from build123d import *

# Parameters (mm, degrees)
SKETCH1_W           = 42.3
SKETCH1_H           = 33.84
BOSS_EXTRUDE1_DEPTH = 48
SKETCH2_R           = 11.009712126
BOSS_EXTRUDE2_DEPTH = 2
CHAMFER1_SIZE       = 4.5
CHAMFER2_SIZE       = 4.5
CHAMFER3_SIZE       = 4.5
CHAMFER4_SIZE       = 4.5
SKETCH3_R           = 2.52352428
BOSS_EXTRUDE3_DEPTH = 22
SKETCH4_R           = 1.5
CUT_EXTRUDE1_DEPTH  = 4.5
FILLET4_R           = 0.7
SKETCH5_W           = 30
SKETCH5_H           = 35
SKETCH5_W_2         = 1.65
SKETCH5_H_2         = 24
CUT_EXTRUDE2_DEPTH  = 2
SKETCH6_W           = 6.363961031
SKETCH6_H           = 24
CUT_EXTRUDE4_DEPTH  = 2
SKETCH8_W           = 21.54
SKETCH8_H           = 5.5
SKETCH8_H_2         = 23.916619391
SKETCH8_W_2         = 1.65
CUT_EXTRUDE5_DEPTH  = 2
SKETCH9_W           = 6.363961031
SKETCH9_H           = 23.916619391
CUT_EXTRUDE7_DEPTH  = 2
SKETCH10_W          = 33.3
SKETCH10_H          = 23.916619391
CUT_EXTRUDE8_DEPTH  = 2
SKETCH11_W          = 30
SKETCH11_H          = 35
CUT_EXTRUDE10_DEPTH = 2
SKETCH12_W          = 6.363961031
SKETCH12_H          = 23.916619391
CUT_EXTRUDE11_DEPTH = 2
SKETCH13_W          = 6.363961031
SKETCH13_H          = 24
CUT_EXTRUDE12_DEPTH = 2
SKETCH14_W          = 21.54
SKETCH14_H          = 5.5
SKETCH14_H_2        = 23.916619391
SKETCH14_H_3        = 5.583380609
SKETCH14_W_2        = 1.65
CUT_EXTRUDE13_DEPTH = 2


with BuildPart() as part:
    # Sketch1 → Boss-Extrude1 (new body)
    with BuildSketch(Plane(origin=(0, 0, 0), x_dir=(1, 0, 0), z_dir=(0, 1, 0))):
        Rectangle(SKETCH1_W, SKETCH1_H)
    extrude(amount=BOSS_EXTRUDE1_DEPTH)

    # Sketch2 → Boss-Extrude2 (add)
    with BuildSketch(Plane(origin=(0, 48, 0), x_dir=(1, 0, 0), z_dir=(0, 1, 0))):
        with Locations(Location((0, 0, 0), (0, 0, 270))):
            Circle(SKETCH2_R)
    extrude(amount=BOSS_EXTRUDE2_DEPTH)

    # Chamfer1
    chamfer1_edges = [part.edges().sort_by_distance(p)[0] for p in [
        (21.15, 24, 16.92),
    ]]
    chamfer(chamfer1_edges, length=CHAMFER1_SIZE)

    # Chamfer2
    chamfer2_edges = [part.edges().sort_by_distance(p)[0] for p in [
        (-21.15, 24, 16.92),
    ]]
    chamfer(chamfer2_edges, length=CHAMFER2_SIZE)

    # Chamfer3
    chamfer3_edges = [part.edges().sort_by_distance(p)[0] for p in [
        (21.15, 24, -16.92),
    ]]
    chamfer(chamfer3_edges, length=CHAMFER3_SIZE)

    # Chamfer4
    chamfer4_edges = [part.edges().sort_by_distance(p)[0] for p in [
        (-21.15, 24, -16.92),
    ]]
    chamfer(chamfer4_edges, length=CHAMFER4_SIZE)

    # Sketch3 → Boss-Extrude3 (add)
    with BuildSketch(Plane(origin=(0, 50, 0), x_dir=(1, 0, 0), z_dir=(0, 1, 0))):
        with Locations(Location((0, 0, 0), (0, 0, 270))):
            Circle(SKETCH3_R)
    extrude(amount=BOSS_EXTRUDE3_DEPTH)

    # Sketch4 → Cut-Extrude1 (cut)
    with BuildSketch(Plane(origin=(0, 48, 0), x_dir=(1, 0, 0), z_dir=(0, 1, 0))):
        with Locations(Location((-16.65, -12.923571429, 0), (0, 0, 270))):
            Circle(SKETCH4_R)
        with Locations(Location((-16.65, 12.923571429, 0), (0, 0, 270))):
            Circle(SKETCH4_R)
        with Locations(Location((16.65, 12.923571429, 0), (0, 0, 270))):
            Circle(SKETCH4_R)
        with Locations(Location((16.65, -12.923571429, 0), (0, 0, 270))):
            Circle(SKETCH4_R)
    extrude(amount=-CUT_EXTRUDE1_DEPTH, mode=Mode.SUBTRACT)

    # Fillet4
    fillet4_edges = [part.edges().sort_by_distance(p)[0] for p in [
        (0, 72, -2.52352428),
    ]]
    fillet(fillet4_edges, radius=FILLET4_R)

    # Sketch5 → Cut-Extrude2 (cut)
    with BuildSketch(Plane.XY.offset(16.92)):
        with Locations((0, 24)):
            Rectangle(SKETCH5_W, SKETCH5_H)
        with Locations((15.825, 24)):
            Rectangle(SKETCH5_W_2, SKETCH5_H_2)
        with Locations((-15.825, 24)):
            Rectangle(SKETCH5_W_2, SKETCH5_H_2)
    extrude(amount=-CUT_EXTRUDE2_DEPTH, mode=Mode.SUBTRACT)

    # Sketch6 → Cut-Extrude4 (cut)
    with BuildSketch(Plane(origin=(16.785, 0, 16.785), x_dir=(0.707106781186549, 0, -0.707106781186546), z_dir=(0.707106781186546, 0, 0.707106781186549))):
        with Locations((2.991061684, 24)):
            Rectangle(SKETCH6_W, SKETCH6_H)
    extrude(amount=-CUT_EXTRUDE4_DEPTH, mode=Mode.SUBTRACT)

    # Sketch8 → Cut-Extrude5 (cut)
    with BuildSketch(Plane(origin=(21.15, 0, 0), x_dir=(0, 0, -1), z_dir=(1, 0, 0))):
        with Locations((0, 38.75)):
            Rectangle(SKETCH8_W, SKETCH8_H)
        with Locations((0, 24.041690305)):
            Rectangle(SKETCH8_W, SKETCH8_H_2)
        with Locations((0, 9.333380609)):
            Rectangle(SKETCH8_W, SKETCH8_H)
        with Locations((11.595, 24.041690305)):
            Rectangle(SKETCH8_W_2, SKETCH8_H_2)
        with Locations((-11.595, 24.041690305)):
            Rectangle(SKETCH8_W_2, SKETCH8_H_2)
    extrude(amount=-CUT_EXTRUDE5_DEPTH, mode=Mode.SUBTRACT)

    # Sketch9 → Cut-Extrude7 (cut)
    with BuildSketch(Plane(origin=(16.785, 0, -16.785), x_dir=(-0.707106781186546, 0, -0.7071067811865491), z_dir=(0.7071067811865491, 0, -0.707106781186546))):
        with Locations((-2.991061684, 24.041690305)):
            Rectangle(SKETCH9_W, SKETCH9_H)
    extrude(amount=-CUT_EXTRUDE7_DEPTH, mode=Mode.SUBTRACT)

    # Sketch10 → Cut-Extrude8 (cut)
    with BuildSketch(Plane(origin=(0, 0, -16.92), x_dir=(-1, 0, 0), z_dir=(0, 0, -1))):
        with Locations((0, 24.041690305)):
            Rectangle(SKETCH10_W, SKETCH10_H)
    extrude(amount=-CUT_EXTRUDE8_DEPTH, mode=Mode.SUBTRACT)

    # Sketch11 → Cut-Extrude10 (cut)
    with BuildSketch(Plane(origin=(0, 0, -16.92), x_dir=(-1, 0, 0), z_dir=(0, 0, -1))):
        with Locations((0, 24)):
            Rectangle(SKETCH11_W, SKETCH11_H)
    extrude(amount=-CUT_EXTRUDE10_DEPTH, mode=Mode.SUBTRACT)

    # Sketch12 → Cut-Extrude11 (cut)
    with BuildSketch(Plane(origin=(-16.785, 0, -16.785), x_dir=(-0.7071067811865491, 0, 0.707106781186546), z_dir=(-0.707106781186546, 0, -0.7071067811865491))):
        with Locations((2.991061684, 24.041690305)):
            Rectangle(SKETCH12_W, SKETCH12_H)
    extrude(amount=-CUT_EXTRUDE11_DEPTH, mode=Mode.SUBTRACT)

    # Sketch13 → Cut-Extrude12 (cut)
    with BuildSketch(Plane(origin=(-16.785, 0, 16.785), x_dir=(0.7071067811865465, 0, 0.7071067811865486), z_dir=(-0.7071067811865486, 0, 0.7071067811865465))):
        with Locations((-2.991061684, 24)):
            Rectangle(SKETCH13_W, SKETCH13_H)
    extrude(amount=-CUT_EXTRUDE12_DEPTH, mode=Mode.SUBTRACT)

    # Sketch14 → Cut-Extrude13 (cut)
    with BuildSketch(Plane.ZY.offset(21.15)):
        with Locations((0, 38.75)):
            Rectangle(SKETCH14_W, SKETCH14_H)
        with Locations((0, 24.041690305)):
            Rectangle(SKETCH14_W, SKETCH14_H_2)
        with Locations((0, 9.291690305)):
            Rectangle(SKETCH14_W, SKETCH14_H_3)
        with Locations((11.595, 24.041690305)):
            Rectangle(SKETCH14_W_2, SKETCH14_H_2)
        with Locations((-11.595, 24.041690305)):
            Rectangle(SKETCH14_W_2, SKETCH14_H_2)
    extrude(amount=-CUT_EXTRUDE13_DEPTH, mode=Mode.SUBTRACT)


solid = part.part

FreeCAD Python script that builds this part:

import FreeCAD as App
import Part
import Sketcher
from FreeCAD import Vector
Q = App.Units.Quantity


def edges_at(feature, points):
    """Names of the edges that pass closest to the given points."""
    edges = feature.Shape.Edges
    near = lambda p: min(range(len(edges)), key=lambda i: edges[i].distToShape(Part.Vertex(*p))[0])
    return sorted({f"Edge{near(p) + 1}" for p in points})

doc = App.newDocument("Part")
body = doc.addObject("PartDesign::Body", "Body")

sketch1 = body.newObject("Sketcher::SketchObject", "Sketch")
sketch1.AttachmentSupport = (doc.getObject("XZ_Plane"), [""])
sketch1.MapMode = "FlatFace"
sketch1.addGeometry(Part.LineSegment(Vector(-21, -17, 0), Vector(-21, 17, 0)), False)
sketch1.addGeometry(Part.LineSegment(Vector(-21, 17, 0), Vector(21, 17, 0)), False)
sketch1.addGeometry(Part.LineSegment(Vector(21, 17, 0), Vector(21, -17, 0)), False)
sketch1.addGeometry(Part.LineSegment(Vector(21, -17, 0), Vector(-21, -17, 0)), False)
sketch1.addConstraint(Sketcher.Constraint("Coincident", 0, 2, 1, 1))
sketch1.addConstraint(Sketcher.Constraint("Coincident", 1, 2, 2, 1))
sketch1.addConstraint(Sketcher.Constraint("Coincident", 2, 2, 3, 1))
sketch1.addConstraint(Sketcher.Constraint("Coincident", 3, 2, 0, 1))
sketch1.addConstraint(Sketcher.Constraint("Vertical", 0))
sketch1.addConstraint(Sketcher.Constraint("Horizontal", 1))
sketch1.addConstraint(Sketcher.Constraint("Vertical", 2))
sketch1.addConstraint(Sketcher.Constraint("Horizontal", 3))
sketch1.addConstraint(Sketcher.Constraint("Symmetric", 0, 2, 2, 2, -1, 1))
sketch1.addConstraint(Sketcher.Constraint("DistanceX", 1, 1, 1, 2, Q("42.3 mm")))
sketch1.addConstraint(Sketcher.Constraint("DistanceY", 0, 1, 0, 2, Q("33.84 mm")))
pad1 = body.newObject("PartDesign::Pad", "Pad")
pad1.Profile = sketch1
pad1.Length = 48
pad1.Reversed = True

sketch2 = body.newObject("Sketcher::SketchObject", "Sketch001")
sketch2.AttachmentSupport = (doc.getObject("XZ_Plane"), [""])
sketch2.MapMode = "FlatFace"
sketch2.AttachmentOffset = App.Placement(Vector(0, 0, -48), App.Rotation())
sketch2.addGeometry(Part.Circle(Vector(0, 0, 0), Vector(0, 0, 1), 11), False)
sketch2.addConstraint(Sketcher.Constraint("Coincident", 0, 3, -1, 1))
sketch2.addConstraint(Sketcher.Constraint("Diameter", 0, Q("22.019424 mm")))
pad2 = body.newObject("PartDesign::Pad", "Pad001")
pad2.Profile = sketch2
pad2.Length = 2
pad2.Reversed = True
doc.recompute()

chamfer = body.newObject("PartDesign::Chamfer", "Chamfer")
chamfer.Base = (pad2, edges_at(pad2, [(21.15, 24, 16.92)]))
chamfer.Size = 4.5
doc.recompute()

chamfer2 = body.newObject("PartDesign::Chamfer", "Chamfer001")
chamfer2.Base = (chamfer, edges_at(chamfer, [(-21.15, 24, 16.92)]))
chamfer2.Size = 4.5
doc.recompute()

chamfer3 = body.newObject("PartDesign::Chamfer", "Chamfer002")
chamfer3.Base = (chamfer2, edges_at(chamfer2, [(21.15, 24, -16.92)]))
chamfer3.Size = 4.5
doc.recompute()

chamfer4 = body.newObject("PartDesign::Chamfer", "Chamfer003")
chamfer4.Base = (chamfer3, edges_at(chamfer3, [(-21.15, 24, -16.92)]))
chamfer4.Size = 4.5

sketch3 = body.newObject("Sketcher::SketchObject", "Sketch002")
sketch3.AttachmentSupport = (doc.getObject("XZ_Plane"), [""])
sketch3.MapMode = "FlatFace"
sketch3.AttachmentOffset = App.Placement(Vector(0, 0, -50), App.Rotation())
sketch3.addGeometry(Part.Circle(Vector(0, 0, 0), Vector(0, 0, 1), 2.5), False)
sketch3.addConstraint(Sketcher.Constraint("Coincident", 0, 3, -1, 1))
sketch3.addConstraint(Sketcher.Constraint("Diameter", 0, Q("5.047049 mm")))
pad3 = body.newObject("PartDesign::Pad", "Pad002")
pad3.Profile = sketch3
pad3.Length = 22
pad3.Reversed = True

sketch4 = body.newObject("Sketcher::SketchObject", "Sketch003")
sketch4.AttachmentSupport = (doc.getObject("XZ_Plane"), [""])
sketch4.MapMode = "FlatFace"
sketch4.AttachmentOffset = App.Placement(Vector(0, 0, -48), App.Rotation())
sketch4.addGeometry(Part.Circle(Vector(-16.6, 12.9, 0), Vector(0, 0, 1), 1.5), False)
sketch4.addGeometry(Part.Circle(Vector(-16.6, -12.9, 0), Vector(0, 0, 1), 1.5), False)
sketch4.addGeometry(Part.Circle(Vector(16.6, -12.9, 0), Vector(0, 0, 1), 1.5), False)
sketch4.addGeometry(Part.Circle(Vector(16.6, 12.9, 0), Vector(0, 0, 1), 1.5), False)
sketch4.addConstraint(Sketcher.Constraint("Equal", 0, 1))
sketch4.addConstraint(Sketcher.Constraint("Equal", 1, 2))
sketch4.addConstraint(Sketcher.Constraint("Equal", 2, 3))
sketch4.addConstraint(Sketcher.Constraint("Symmetric", 0, 3, 2, 3, -1, 1))
sketch4.addConstraint(Sketcher.Constraint("Symmetric", 1, 3, 3, 3, -1, 1))
sketch4.addConstraint(Sketcher.Constraint("Symmetric", 1, 3, 2, 3, -2))
sketch4.addConstraint(Sketcher.Constraint("Diameter", 0, Q("3 mm")))
sketch4.addConstraint(Sketcher.Constraint("DistanceX", 1, 3, 2, 3, Q("33.3 mm")))
sketch4.addConstraint(Sketcher.Constraint("DistanceY", -1, 1, 0, 3, Q("12.923571 mm")))
pocket1 = body.newObject("PartDesign::Pocket", "Pocket")
pocket1.Profile = sketch4
pocket1.Length = 4.5
pocket1.Reversed = True
doc.recompute()

fillet = body.newObject("PartDesign::Fillet", "Fillet")
fillet.Base = (pocket1, edges_at(pocket1, [(0, 72, -2.524)]))
fillet.Radius = 0.7

sketch5 = body.newObject("Sketcher::SketchObject", "Sketch004")
sketch5.AttachmentSupport = (doc.getObject("XY_Plane"), [""])
sketch5.MapMode = "FlatFace"
sketch5.AttachmentOffset = App.Placement(Vector(0, 0, 16.92), App.Rotation())
sketch5.addGeometry(Part.LineSegment(Vector(-15, 12, 0), Vector(-15, 6.5, 0)), False)
sketch5.addGeometry(Part.LineSegment(Vector(-15, 6.5, 0), Vector(15, 6.5, 0)), False)
sketch5.addGeometry(Part.LineSegment(Vector(15, 6.5, 0), Vector(15, 12, 0)), False)
sketch5.addGeometry(Part.LineSegment(Vector(15, 12, 0), Vector(16.6, 12, 0)), False)
sketch5.addGeometry(Part.LineSegment(Vector(16.6, 12, 0), Vector(16.6, 36, 0)), False)
sketch5.addGeometry(Part.LineSegment(Vector(16.6, 36, 0), Vector(15, 36, 0)), False)
sketch5.addGeometry(Part.LineSegment(Vector(15, 36, 0), Vector(15, 41.5, 0)), False)
sketch5.addGeometry(Part.LineSegment(Vector(15, 41.5, 0), Vector(-15, 41.5, 0)), False)
sketch5.addGeometry(Part.LineSegment(Vector(-15, 41.5, 0), Vector(-15, 36, 0)), False)
sketch5.addGeometry(Part.LineSegment(Vector(-15, 36, 0), Vector(-16.6, 36, 0)), False)
sketch5.addGeometry(Part.LineSegment(Vector(-16.6, 36, 0), Vector(-16.6, 12, 0)), False)
sketch5.addGeometry(Part.LineSegment(Vector(-16.6, 12, 0), Vector(-15, 12, 0)), False)
sketch5.addConstraint(Sketcher.Constraint("Coincident", 0, 2, 1, 1))
sketch5.addConstraint(Sketcher.Constraint("Coincident", 1, 2, 2, 1))
sketch5.addConstraint(Sketcher.Constraint("Coincident", 2, 2, 3, 1))
sketch5.addConstraint(Sketcher.Constraint("Coincident", 3, 2, 4, 1))
sketch5.addConstraint(Sketcher.Constraint("Coincident", 4, 2, 5, 1))
sketch5.addConstraint(Sketcher.Constraint("Coincident", 5, 2, 6, 1))
sketch5.addConstraint(Sketcher.Constraint("Coincident", 6, 2, 7, 1))
sketch5.addConstraint(Sketcher.Constraint("Coincident", 7, 2, 8, 1))
sketch5.addConstraint(Sketcher.Constraint("Coincident", 8, 2, 9, 1))
sketch5.addConstraint(Sketcher.Constraint("Coincident", 9, 2, 10, 1))
sketch5.addConstraint(Sketcher.Constraint("Coincident", 10, 2, 11, 1))
sketch5.addConstraint(Sketcher.Constraint("Coincident", 11, 2, 0, 1))
sketch5.addConstraint(Sketcher.Constraint("Vertical", 0))
sketch5.addConstraint(Sketcher.Constraint("Horizontal", 1))
sketch5.addConstraint(Sketcher.Constraint("Vertical", 2))
sketch5.addConstraint(Sketcher.Constraint("Horizontal", 3))
sketch5.addConstraint(Sketcher.Constraint("Vertical", 4))
sketch5.addConstraint(Sketcher.Constraint("Horizontal", 5))
sketch5.addConstraint(Sketcher.Constraint("Vertical", 6))
sketch5.addConstraint(Sketcher.Constraint("Horizontal", 7))
sketch5.addConstraint(Sketcher.Constraint("Vertical", 8))
sketch5.addConstraint(Sketcher.Constraint("Horizontal", 9))
sketch5.addConstraint(Sketcher.Constraint("Vertical", 10))
sketch5.addConstraint(Sketcher.Constraint("Horizontal", 11))
sketch5.addConstraint(Sketcher.Constraint("Symmetric", 5, 2, 8, 2, -2))
sketch5.addConstraint(Sketcher.Constraint("Symmetric", 3, 2, 10, 2, -2))
sketch5.addConstraint(Sketcher.Constraint("Vertical", 2, 2, 5, 2))
sketch5.addConstraint(Sketcher.Constraint("Vertical", 0, 2, 7, 2))
sketch5.addConstraint(Sketcher.Constraint("Equal", 2, 6))
sketch5.addConstraint(Sketcher.Constraint("DistanceX", 1, 1, 1, 2, Q("30 mm")))
sketch5.addConstraint(Sketcher.Constraint("DistanceY", 4, 1, 4, 2, Q("24 mm")))
sketch5.addConstraint(Sketcher.Constraint("DistanceY", 0, 2, 0, 1, Q("5.5 mm")))
sketch5.addConstraint(Sketcher.Constraint("DistanceY", -1, 1, 2, 2, Q("12 mm")))
sketch5.addConstraint(Sketcher.Constraint("DistanceX", 3, 1, 3, 2, Q("1.65 mm")))
pocket2 = body.newObject("PartDesign::Pocket", "Pocket001")
pocket2.Profile = sketch5
pocket2.Length = 2

sketch6 = body.newObject("Sketcher::SketchObject", "Sketch005")
sketch6.Placement = App.Placement(Vector(16.785, 0, 16.785), App.Rotation(Vector(0.707106781, 0, -0.707106781), Vector(0, 0.999999999, 0), Vector(0.707106781, 0, 0.707106781), "ZXY"))
sketch6.addGeometry(Part.LineSegment(Vector(0, 36, 0), Vector(0, 12, 0)), False)
sketch6.addGeometry(Part.LineSegment(Vector(0, 12, 0), Vector(6, 12, 0)), False)
sketch6.addGeometry(Part.LineSegment(Vector(6, 12, 0), Vector(6, 36, 0)), False)
sketch6.addGeometry(Part.LineSegment(Vector(6, 36, 0), Vector(0, 36, 0)), False)
sketch6.addConstraint(Sketcher.Constraint("Coincident", 0, 2, 1, 1))
sketch6.addConstraint(Sketcher.Constraint("Coincident", 1, 2, 2, 1))
sketch6.addConstraint(Sketcher.Constraint("Coincident", 2, 2, 3, 1))
sketch6.addConstraint(Sketcher.Constraint("Coincident", 3, 2, 0, 1))
sketch6.addConstraint(Sketcher.Constraint("Vertical", 0))
sketch6.addConstraint(Sketcher.Constraint("Horizontal", 1))
sketch6.addConstraint(Sketcher.Constraint("Vertical", 2))
sketch6.addConstraint(Sketcher.Constraint("Horizontal", 3))
sketch6.addConstraint(Sketcher.Constraint("DistanceY", 0, 2, 0, 1, Q("24 mm")))
sketch6.addConstraint(Sketcher.Constraint("DistanceY", -1, 1, 0, 2, Q("12 mm")))
sketch6.addConstraint(Sketcher.Constraint("DistanceX", 1, 1, 1, 2, Q("6.363961 mm")))
sketch6.addConstraint(Sketcher.Constraint("DistanceX", 0, 2, -1, 1, Q("0.190919 mm")))
pocket3 = body.newObject("PartDesign::Pocket", "Pocket002")
pocket3.Profile = sketch6
pocket3.Length = 2

sketch7 = body.newObject("Sketcher::SketchObject", "Sketch006")
sketch7.AttachmentSupport = (doc.getObject("YZ_Plane"), [""])
sketch7.MapMode = "FlatFace"
sketch7.AttachmentOffset = App.Placement(Vector(0, 0, 21.15), App.Rotation())
sketch7.addGeometry(Part.LineSegment(Vector(41.5, 10.8, 0), Vector(36, 10.8, 0)), False)
sketch7.addGeometry(Part.LineSegment(Vector(36, 10.8, 0), Vector(36, 12.4, 0)), False)
sketch7.addGeometry(Part.LineSegment(Vector(36, 12.4, 0), Vector(12.1, 12.4, 0)), False)
sketch7.addGeometry(Part.LineSegment(Vector(12.1, 12.4, 0), Vector(12.1, 10.8, 0)), False)
sketch7.addGeometry(Part.LineSegment(Vector(12.1, 10.8, 0), Vector(6.6, 10.8, 0)), False)
sketch7.addGeometry(Part.LineSegment(Vector(6.6, 10.8, 0), Vector(6.6, -10.8, 0)), False)
sketch7.addGeometry(Part.LineSegment(Vector(6.6, -10.8, 0), Vector(12.1, -10.8, 0)), False)
sketch7.addGeometry(Part.LineSegment(Vector(12.1, -10.8, 0), Vector(12.1, -12.4, 0)), False)
sketch7.addGeometry(Part.LineSegment(Vector(12.1, -12.4, 0), Vector(36, -12.4, 0)), False)
sketch7.addGeometry(Part.LineSegment(Vector(36, -12.4, 0), Vector(36, -10.8, 0)), False)
sketch7.addGeometry(Part.LineSegment(Vector(36, -10.8, 0), Vector(41.5, -10.8, 0)), False)
sketch7.addGeometry(Part.LineSegment(Vector(41.5, -10.8, 0), Vector(41.5, 10.8, 0)), False)
sketch7.addConstraint(Sketcher.Constraint("Coincident", 0, 2, 1, 1))
sketch7.addConstraint(Sketcher.Constraint("Coincident", 1, 2, 2, 1))
sketch7.addConstraint(Sketcher.Constraint("Coincident", 2, 2, 3, 1))
sketch7.addConstraint(Sketcher.Constraint("Coincident", 3, 2, 4, 1))
sketch7.addConstraint(Sketcher.Constraint("Coincident", 4, 2, 5, 1))
sketch7.addConstraint(Sketcher.Constraint("Coincident", 5, 2, 6, 1))
sketch7.addConstraint(Sketcher.Constraint("Coincident", 6, 2, 7, 1))
sketch7.addConstraint(Sketcher.Constraint("Coincident", 7, 2, 8, 1))
sketch7.addConstraint(Sketcher.Constraint("Coincident", 8, 2, 9, 1))
sketch7.addConstraint(Sketcher.Constraint("Coincident", 9, 2, 10, 1))
sketch7.addConstraint(Sketcher.Constraint("Coincident", 10, 2, 11, 1))
sketch7.addConstraint(Sketcher.Constraint("Coincident", 11, 2, 0, 1))
sketch7.addConstraint(Sketcher.Constraint("Horizontal", 0))
sketch7.addConstraint(Sketcher.Constraint("Vertical", 1))
sketch7.addConstraint(Sketcher.Constraint("Horizontal", 2))
sketch7.addConstraint(Sketcher.Constraint("Vertical", 3))
sketch7.addConstraint(Sketcher.Constraint("Horizontal", 4))
sketch7.addConstraint(Sketcher.Constraint("Vertical", 5))
sketch7.addConstraint(Sketcher.Constraint("Horizontal", 6))
sketch7.addConstraint(Sketcher.Constraint("Vertical", 7))
sketch7.addConstraint(Sketcher.Constraint("Horizontal", 8))
sketch7.addConstraint(Sketcher.Constraint("Vertical", 9))
sketch7.addConstraint(Sketcher.Constraint("Horizontal", 10))
sketch7.addConstraint(Sketcher.Constraint("Vertical", 11))
sketch7.addConstraint(Sketcher.Constraint("Symmetric", 3, 2, 6, 2, -1))
sketch7.addConstraint(Sketcher.Constraint("Symmetric", 1, 2, 8, 2, -1))
sketch7.addConstraint(Sketcher.Constraint("Horizontal", 0, 2, 3, 2))
sketch7.addConstraint(Sketcher.Constraint("Horizontal", 6, 2, 9, 2))
sketch7.addConstraint(Sketcher.Constraint("Equal", 0, 4))
sketch7.addConstraint(Sketcher.Constraint("DistanceX", 0, 2, 0, 1, Q("5.5 mm")))
sketch7.addConstraint(Sketcher.Constraint("DistanceX", -1, 1, 0, 2, Q("36 mm")))
sketch7.addConstraint(Sketcher.Constraint("DistanceY", 1, 1, 1, 2, Q("1.65 mm")))
sketch7.addConstraint(Sketcher.Constraint("DistanceY", 5, 2, 5, 1, Q("21.54 mm")))
sketch7.addConstraint(Sketcher.Constraint("DistanceX", 2, 2, 2, 1, Q("23.916619 mm")))
pocket4 = body.newObject("PartDesign::Pocket", "Pocket003")
pocket4.Profile = sketch7
pocket4.Length = 2

sketch8 = body.newObject("Sketcher::SketchObject", "Sketch007")
sketch8.Placement = App.Placement(Vector(16.785, 0, -16.785), App.Rotation(Vector(-0.707106781, 0, -0.707106781), Vector(0, 0.999999999, 0), Vector(0.707106781, 0, -0.707106781), "ZXY"))
sketch8.addGeometry(Part.LineSegment(Vector(-6, 36, 0), Vector(-6, 12, 0)), False)
sketch8.addGeometry(Part.LineSegment(Vector(-6, 12, 0), Vector(0, 12, 0)), False)
sketch8.addGeometry(Part.LineSegment(Vector(0, 12, 0), Vector(0, 36, 0)), False)
sketch8.addGeometry(Part.LineSegment(Vector(0, 36, 0), Vector(-6, 36, 0)), False)
sketch8.addConstraint(Sketcher.Constraint("Coincident", 0, 2, 1, 1))
sketch8.addConstraint(Sketcher.Constraint("Coincident", 1, 2, 2, 1))
sketch8.addConstraint(Sketcher.Constraint("Coincident", 2, 2, 3, 1))
sketch8.addConstraint(Sketcher.Constraint("Coincident", 3, 2, 0, 1))
sketch8.addConstraint(Sketcher.Constraint("Vertical", 0))
sketch8.addConstraint(Sketcher.Constraint("Horizontal", 1))
sketch8.addConstraint(Sketcher.Constraint("Vertical", 2))
sketch8.addConstraint(Sketcher.Constraint("Horizontal", 3))
sketch8.addConstraint(Sketcher.Constraint("DistanceY", -1, 1, 2, 2, Q("36 mm")))
sketch8.addConstraint(Sketcher.Constraint("DistanceX", 1, 1, 1, 2, Q("6.363961 mm")))
sketch8.addConstraint(Sketcher.Constraint("DistanceY", 0, 2, 0, 1, Q("23.916619 mm")))
sketch8.addConstraint(Sketcher.Constraint("DistanceX", -1, 1, 1, 2, Q("0.190919 mm")))
pocket5 = body.newObject("PartDesign::Pocket", "Pocket004")
pocket5.Profile = sketch8
pocket5.Length = 2

sketch9 = body.newObject("Sketcher::SketchObject", "Sketch008")
sketch9.AttachmentSupport = (doc.getObject("XY_Plane"), [""])
sketch9.MapMode = "FlatFace"
sketch9.AttachmentOffset = App.Placement(Vector(0, 0, -16.92), App.Rotation())
sketch9.addGeometry(Part.LineSegment(Vector(17, 36, 0), Vector(17, 12, 0)), False)
sketch9.addGeometry(Part.LineSegment(Vector(17, 12, 0), Vector(-17, 12, 0)), False)
sketch9.addGeometry(Part.LineSegment(Vector(-17, 12, 0), Vector(-17, 36, 0)), False)
sketch9.addGeometry(Part.LineSegment(Vector(-17, 36, 0), Vector(17, 36, 0)), False)
sketch9.addConstraint(Sketcher.Constraint("Coincident", 0, 2, 1, 1))
sketch9.addConstraint(Sketcher.Constraint("Coincident", 1, 2, 2, 1))
sketch9.addConstraint(Sketcher.Constraint("Coincident", 2, 2, 3, 1))
sketch9.addConstraint(Sketcher.Constraint("Coincident", 3, 2, 0, 1))
sketch9.addConstraint(Sketcher.Constraint("Vertical", 0))
sketch9.addConstraint(Sketcher.Constraint("Horizontal", 1))
sketch9.addConstraint(Sketcher.Constraint("Vertical", 2))
sketch9.addConstraint(Sketcher.Constraint("Horizontal", 3))
sketch9.addConstraint(Sketcher.Constraint("DistanceX", 1, 2, 1, 1, Q("33.3 mm")))
sketch9.addConstraint(Sketcher.Constraint("DistanceY", -1, 1, 2, 2, Q("36 mm")))
sketch9.addConstraint(Sketcher.Constraint("DistanceX", -1, 1, 0, 2, Q("16.65 mm")))
sketch9.addConstraint(Sketcher.Constraint("DistanceY", 0, 2, 0, 1, Q("23.916619 mm")))
pocket6 = body.newObject("PartDesign::Pocket", "Pocket005")
pocket6.Profile = sketch9
pocket6.Length = 2
pocket6.Reversed = True

sketch10 = body.newObject("Sketcher::SketchObject", "Sketch009")
sketch10.AttachmentSupport = (doc.getObject("XY_Plane"), [""])
sketch10.MapMode = "FlatFace"
sketch10.AttachmentOffset = App.Placement(Vector(0, 0, -16.92), App.Rotation())
sketch10.addGeometry(Part.LineSegment(Vector(15, 42, 0), Vector(15, 6, 0)), False)
sketch10.addGeometry(Part.LineSegment(Vector(15, 6, 0), Vector(-15, 6, 0)), False)
sketch10.addGeometry(Part.LineSegment(Vector(-15, 6, 0), Vector(-15, 42, 0)), False)
sketch10.addGeometry(Part.LineSegment(Vector(-15, 42, 0), Vector(15, 42, 0)), False)
sketch10.addConstraint(Sketcher.Constraint("Coincident", 0, 2, 1, 1))
sketch10.addConstraint(Sketcher.Constraint("Coincident", 1, 2, 2, 1))
sketch10.addConstraint(Sketcher.Constraint("Coincident", 2, 2, 3, 1))
sketch10.addConstraint(Sketcher.Constraint("Coincident", 3, 2, 0, 1))
sketch10.addConstraint(Sketcher.Constraint("Vertical", 0))
sketch10.addConstraint(Sketcher.Constraint("Horizontal", 1))
sketch10.addConstraint(Sketcher.Constraint("Vertical", 2))
sketch10.addConstraint(Sketcher.Constraint("Horizontal", 3))
sketch10.addConstraint(Sketcher.Constraint("DistanceX", 1, 2, 1, 1, Q("30 mm")))
sketch10.addConstraint(Sketcher.Constraint("DistanceY", 0, 2, 0, 1, Q("35 mm")))
sketch10.addConstraint(Sketcher.Constraint("DistanceX", -1, 1, 0, 2, Q("15 mm")))
sketch10.addConstraint(Sketcher.Constraint("DistanceY", -1, 1, 0, 2, Q("6.5 mm")))
pocket7 = body.newObject("PartDesign::Pocket", "Pocket006")
pocket7.Profile = sketch10
pocket7.Length = 2
pocket7.Reversed = True

sketch11 = body.newObject("Sketcher::SketchObject", "Sketch010")
sketch11.Placement = App.Placement(Vector(-16.785, 0, -16.785), App.Rotation(Vector(-0.707106781, 0, 0.707106781), Vector(0, 0.999999999, 0), Vector(-0.707106781, 0, -0.707106781), "ZXY"))
sketch11.addGeometry(Part.LineSegment(Vector(0, 36, 0), Vector(0, 12, 0)), False)
sketch11.addGeometry(Part.LineSegment(Vector(0, 12, 0), Vector(6, 12, 0)), False)
sketch11.addGeometry(Part.LineSegment(Vector(6, 12, 0), Vector(6, 36, 0)), False)
sketch11.addGeometry(Part.LineSegment(Vector(6, 36, 0), Vector(0, 36, 0)), False)
sketch11.addConstraint(Sketcher.Constraint("Coincident", 0, 2, 1, 1))
sketch11.addConstraint(Sketcher.Constraint("Coincident", 1, 2, 2, 1))
sketch11.addConstraint(Sketcher.Constraint("Coincident", 2, 2, 3, 1))
sketch11.addConstraint(Sketcher.Constraint("Coincident", 3, 2, 0, 1))
sketch11.addConstraint(Sketcher.Constraint("Vertical", 0))
sketch11.addConstraint(Sketcher.Constraint("Horizontal", 1))
sketch11.addConstraint(Sketcher.Constraint("Vertical", 2))
sketch11.addConstraint(Sketcher.Constraint("Horizontal", 3))
sketch11.addConstraint(Sketcher.Constraint("DistanceY", -1, 1, 2, 2, Q("36 mm")))
sketch11.addConstraint(Sketcher.Constraint("DistanceX", 1, 1, 1, 2, Q("6.363961 mm")))
sketch11.addConstraint(Sketcher.Constraint("DistanceY", 0, 2, 0, 1, Q("23.916619 mm")))
sketch11.addConstraint(Sketcher.Constraint("DistanceX", 0, 2, -1, 1, Q("0.190919 mm")))
pocket8 = body.newObject("PartDesign::Pocket", "Pocket007")
pocket8.Profile = sketch11
pocket8.Length = 2

sketch12 = body.newObject("Sketcher::SketchObject", "Sketch011")
sketch12.Placement = App.Placement(Vector(-16.785, 0, 16.785), App.Rotation(Vector(0.707106781, 0, 0.707106781), Vector(0, 0.999999999, 0), Vector(-0.707106781, 0, 0.707106781), "ZXY"))
sketch12.addGeometry(Part.LineSegment(Vector(-6, 36, 0), Vector(-6, 12, 0)), False)
sketch12.addGeometry(Part.LineSegment(Vector(-6, 12, 0), Vector(0, 12, 0)), False)
sketch12.addGeometry(Part.LineSegment(Vector(0, 12, 0), Vector(0, 36, 0)), False)
sketch12.addGeometry(Part.LineSegment(Vector(0, 36, 0), Vector(-6, 36, 0)), False)
sketch12.addConstraint(Sketcher.Constraint("Coincident", 0, 2, 1, 1))
sketch12.addConstraint(Sketcher.Constraint("Coincident", 1, 2, 2, 1))
sketch12.addConstraint(Sketcher.Constraint("Coincident", 2, 2, 3, 1))
sketch12.addConstraint(Sketcher.Constraint("Coincident", 3, 2, 0, 1))
sketch12.addConstraint(Sketcher.Constraint("Vertical", 0))
sketch12.addConstraint(Sketcher.Constraint("Horizontal", 1))
sketch12.addConstraint(Sketcher.Constraint("Vertical", 2))
sketch12.addConstraint(Sketcher.Constraint("Horizontal", 3))
sketch12.addConstraint(Sketcher.Constraint("DistanceY", 0, 2, 0, 1, Q("24 mm")))
sketch12.addConstraint(Sketcher.Constraint("DistanceY", -1, 1, 0, 2, Q("12 mm")))
sketch12.addConstraint(Sketcher.Constraint("DistanceX", 1, 1, 1, 2, Q("6.363961 mm")))
sketch12.addConstraint(Sketcher.Constraint("DistanceX", -1, 1, 1, 2, Q("0.190919 mm")))
pocket9 = body.newObject("PartDesign::Pocket", "Pocket008")
pocket9.Profile = sketch12
pocket9.Length = 2

sketch13 = body.newObject("Sketcher::SketchObject", "Sketch012")
sketch13.AttachmentSupport = (doc.getObject("YZ_Plane"), [""])
sketch13.MapMode = "FlatFace"
sketch13.AttachmentOffset = App.Placement(Vector(0, 0, -21.15), App.Rotation())
sketch13.addGeometry(Part.LineSegment(Vector(41.5, -10.8, 0), Vector(36, -10.8, 0)), False)
sketch13.addGeometry(Part.LineSegment(Vector(36, -10.8, 0), Vector(36, -12.4, 0)), False)
sketch13.addGeometry(Part.LineSegment(Vector(36, -12.4, 0), Vector(12.1, -12.4, 0)), False)
sketch13.addGeometry(Part.LineSegment(Vector(12.1, -12.4, 0), Vector(12.1, -10.8, 0)), False)
sketch13.addGeometry(Part.LineSegment(Vector(12.1, -10.8, 0), Vector(6.5, -10.8, 0)), False)
sketch13.addGeometry(Part.LineSegment(Vector(6.5, -10.8, 0), Vector(6.5, 10.8, 0)), False)
sketch13.addGeometry(Part.LineSegment(Vector(6.5, 10.8, 0), Vector(12.1, 10.8, 0)), False)
sketch13.addGeometry(Part.LineSegment(Vector(12.1, 10.8, 0), Vector(12.1, 12.4, 0)), False)
sketch13.addGeometry(Part.LineSegment(Vector(12.1, 12.4, 0), Vector(36, 12.4, 0)), False)
sketch13.addGeometry(Part.LineSegment(Vector(36, 12.4, 0), Vector(36, 10.8, 0)), False)
sketch13.addGeometry(Part.LineSegment(Vector(36, 10.8, 0), Vector(41.5, 10.8, 0)), False)
sketch13.addGeometry(Part.LineSegment(Vector(41.5, 10.8, 0), Vector(41.5, -10.8, 0)), False)
sketch13.addConstraint(Sketcher.Constraint("Coincident", 0, 2, 1, 1))
sketch13.addConstraint(Sketcher.Constraint("Coincident", 1, 2, 2, 1))
sketch13.addConstraint(Sketcher.Constraint("Coincident", 2, 2, 3, 1))
sketch13.addConstraint(Sketcher.Constraint("Coincident", 3, 2, 4, 1))
sketch13.addConstraint(Sketcher.Constraint("Coincident", 4, 2, 5, 1))
sketch13.addConstraint(Sketcher.Constraint("Coincident", 5, 2, 6, 1))
sketch13.addConstraint(Sketcher.Constraint("Coincident", 6, 2, 7, 1))
sketch13.addConstraint(Sketcher.Constraint("Coincident", 7, 2, 8, 1))
sketch13.addConstraint(Sketcher.Constraint("Coincident", 8, 2, 9, 1))
sketch13.addConstraint(Sketcher.Constraint("Coincident", 9, 2, 10, 1))
sketch13.addConstraint(Sketcher.Constraint("Coincident", 10, 2, 11, 1))
sketch13.addConstraint(Sketcher.Constraint("Coincident", 11, 2, 0, 1))
sketch13.addConstraint(Sketcher.Constraint("Horizontal", 0))
sketch13.addConstraint(Sketcher.Constraint("Vertical", 1))
sketch13.addConstraint(Sketcher.Constraint("Horizontal", 2))
sketch13.addConstraint(Sketcher.Constraint("Vertical", 3))
sketch13.addConstraint(Sketcher.Constraint("Horizontal", 4))
sketch13.addConstraint(Sketcher.Constraint("Vertical", 5))
sketch13.addConstraint(Sketcher.Constraint("Horizontal", 6))
sketch13.addConstraint(Sketcher.Constraint("Vertical", 7))
sketch13.addConstraint(Sketcher.Constraint("Horizontal", 8))
sketch13.addConstraint(Sketcher.Constraint("Vertical", 9))
sketch13.addConstraint(Sketcher.Constraint("Horizontal", 10))
sketch13.addConstraint(Sketcher.Constraint("Vertical", 11))
sketch13.addConstraint(Sketcher.Constraint("Symmetric", 3, 2, 6, 2, -1))
sketch13.addConstraint(Sketcher.Constraint("Symmetric", 1, 2, 8, 2, -1))
sketch13.addConstraint(Sketcher.Constraint("Horizontal", 0, 2, 3, 2))
sketch13.addConstraint(Sketcher.Constraint("Horizontal", 6, 2, 9, 2))
sketch13.addConstraint(Sketcher.Constraint("DistanceX", 0, 2, 0, 1, Q("5.5 mm")))
sketch13.addConstraint(Sketcher.Constraint("DistanceX", -1, 1, 0, 2, Q("36 mm")))
sketch13.addConstraint(Sketcher.Constraint("DistanceY", 1, 2, 1, 1, Q("1.65 mm")))
sketch13.addConstraint(Sketcher.Constraint("DistanceY", 5, 1, 5, 2, Q("21.54 mm")))
sketch13.addConstraint(Sketcher.Constraint("DistanceX", -1, 1, 4, 2, Q("6.5 mm")))
sketch13.addConstraint(Sketcher.Constraint("DistanceX", 2, 2, 2, 1, Q("23.916619 mm")))
pocket10 = body.newObject("PartDesign::Pocket", "Pocket009")
pocket10.Profile = sketch13
pocket10.Length = 2
pocket10.Reversed = True

doc.recompute()
